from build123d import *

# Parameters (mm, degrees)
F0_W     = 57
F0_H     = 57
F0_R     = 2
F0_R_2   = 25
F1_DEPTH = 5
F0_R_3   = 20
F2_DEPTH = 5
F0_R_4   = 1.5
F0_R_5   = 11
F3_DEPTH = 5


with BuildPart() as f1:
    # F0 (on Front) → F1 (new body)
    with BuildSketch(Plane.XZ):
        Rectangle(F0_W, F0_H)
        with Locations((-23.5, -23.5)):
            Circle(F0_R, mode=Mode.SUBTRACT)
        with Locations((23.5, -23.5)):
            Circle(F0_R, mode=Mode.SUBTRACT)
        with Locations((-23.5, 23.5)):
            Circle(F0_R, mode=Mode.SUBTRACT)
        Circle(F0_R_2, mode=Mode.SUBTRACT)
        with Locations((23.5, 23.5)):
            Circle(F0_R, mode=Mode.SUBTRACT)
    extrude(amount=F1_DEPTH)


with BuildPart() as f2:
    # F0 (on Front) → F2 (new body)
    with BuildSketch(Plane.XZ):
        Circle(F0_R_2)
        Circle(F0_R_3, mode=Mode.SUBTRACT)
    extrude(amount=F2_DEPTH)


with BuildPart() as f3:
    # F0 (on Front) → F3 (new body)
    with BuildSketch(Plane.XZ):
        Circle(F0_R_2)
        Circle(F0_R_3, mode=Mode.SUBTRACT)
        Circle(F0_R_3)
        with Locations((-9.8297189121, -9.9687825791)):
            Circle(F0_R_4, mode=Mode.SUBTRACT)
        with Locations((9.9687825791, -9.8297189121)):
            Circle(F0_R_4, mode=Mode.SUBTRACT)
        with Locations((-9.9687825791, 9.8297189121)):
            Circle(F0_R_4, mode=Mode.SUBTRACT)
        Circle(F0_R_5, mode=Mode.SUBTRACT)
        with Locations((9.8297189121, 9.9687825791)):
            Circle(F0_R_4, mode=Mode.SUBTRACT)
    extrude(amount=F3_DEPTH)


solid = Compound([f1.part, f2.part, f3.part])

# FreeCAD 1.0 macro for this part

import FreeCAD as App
import Part
import Sketcher
from FreeCAD import Vector


def add_polygon(sketch, points):
    """Adds a closed chain of lines whose ends are joined by coincident constraints."""
    first, n = sketch.GeometryCount, len(points)
    for a, b in zip(points, points[1:] + points[:1]):
        sketch.addGeometry(Part.LineSegment(App.Vector(*a, 0), App.Vector(*b, 0)), False)
    for i in range(n):
        sketch.addConstraint(Sketcher.Constraint("Coincident", first + i, 2, first + (i + 1) % n, 1))

doc = App.newDocument("Part")
body = doc.addObject("PartDesign::Body", "Body")

sketch1 = body.newObject("Sketcher::SketchObject", "Sketch")
sketch1.AttachmentSupport = (doc.getObject("XZ_Plane"), [""])
sketch1.MapMode = "FlatFace"
add_polygon(sketch1, [(-28.5, 28.5), (-28.5, -28.5), (28.5, -28.5), (28.5, 28.5)])
sketch1.addGeometry(Part.Circle(Vector(-23.5, -23.5, 0), Vector(0, 0, 1), 2), False)
sketch1.addGeometry(Part.Circle(Vector(23.5, -23.5, 0), Vector(0, 0, 1), 2), False)
sketch1.addGeometry(Part.Circle(Vector(-23.5, 23.5, 0), Vector(0, 0, 1), 2), False)
sketch1.addGeometry(Part.Circle(Vector(0, 0, 0), Vector(0, 0, 1), 25), False)
sketch1.addGeometry(Part.Circle(Vector(23.5, 23.5, 0), Vector(0, 0, 1), 2), False)
sketch1.addConstraint([
    Sketcher.Constraint("Vertical", 0),
    Sketcher.Constraint("Horizontal", 1),
    Sketcher.Constraint("Vertical", 2),
    Sketcher.Constraint("Horizontal", 3),
    Sketcher.Constraint("Coincident", 7, 3, -1, 1),
    Sketcher.Constraint("Equal", 4, 5),
    Sketcher.Constraint("Equal", 5, 6),
    Sketcher.Constraint("Equal", 6, 8),
    Sketcher.Constraint("Symmetric", 5, 3, 6, 3, -1, 1),
    Sketcher.Constraint("Symmetric", 4, 3, 8, 3, -1, 1),
    Sketcher.Constraint("Symmetric", 0, 2, 2, 2, -1, 1),
    Sketcher.Constraint("Symmetric", 4, 3, 5, 3, -2),
    Sketcher.Constraint("Equal", 3, 0),
    Sketcher.Constraint("Diameter", 4, 4.0),
    Sketcher.Constraint("Diameter", 7, 50.0),
    Sketcher.Constraint("DistanceX", 1, 1, 1, 2, 57.0),
    Sketcher.Constraint("DistanceX", 4, 3, 5, 3, 47.0),
    Sketcher.Constraint("DistanceY", 4, 3, 6, 3, 47.0),
])
pad1 = body.newObject("PartDesign::Pad", "Pad")
pad1.Profile = sketch1
pad1.Length = 5
body2 = doc.addObject("PartDesign::Body", "Body001")

sketch2 = body2.newObject("Sketcher::SketchObject", "Sketch001")
sketch2.AttachmentSupport = (doc.getObject("XZ_Plane001"), [""])
sketch2.MapMode = "FlatFace"
sketch2.addGeometry([
    Part.Circle(Vector(0, 0, 0), Vector(0, 0, 1), 25),
    Part.Circle(Vector(0, 0, 0), Vector(0, 0, 1), 20),
], False)
sketch2.addConstraint([
    Sketcher.Constraint("Coincident", 0, 3, -1, 1),
    Sketcher.Constraint("Coincident", 1, 3, -1, 1),
    Sketcher.Constraint("Diameter", 0, 50.0),
    Sketcher.Constraint("Diameter", 1, 40.0),
])
pad2 = body2.newObject("PartDesign::Pad", "Pad001")
pad2.Profile = sketch2
pad2.Length = 5
body3 = doc.addObject("PartDesign::Body", "Body002")

sketch3 = body3.newObject("Sketcher::SketchObject", "Sketch002")
sketch3.AttachmentSupport = (doc.getObject("XZ_Plane002"), [""])
sketch3.MapMode = "FlatFace"
sketch3.addGeometry([
    Part.Circle(Vector(0, 0, 0), Vector(0, 0, 1), 25),
    Part.Circle(Vector(-9.829719, -9.968783, 0), Vector(0, 0, 1), 1.5),
    Part.Circle(Vector(9.968783, -9.829719, 0), Vector(0, 0, 1), 1.5),
    Part.Circle(Vector(-9.968783, 9.829719, 0), Vector(0, 0, 1), 1.5),
    Part.Circle(Vector(0, 0, 0), Vector(0, 0, 1), 11),
    Part.Circle(Vector(9.829719, 9.968783, 0), Vector(0, 0, 1), 1.5),
], False)
sketch3.addConstraint([
    Sketcher.Constraint("Coincident", 0, 3, -1, 1),
    Sketcher.Constraint("Coincident", 4, 3, -1, 1),
    Sketcher.Constraint("Equal", 1, 2),
    Sketcher.Constraint("Equal", 2, 3),
    Sketcher.Constraint("Equal", 3, 5),
    Sketcher.Constraint("Symmetric", 2, 3, 3, 3, -1, 1),
    Sketcher.Constraint("Symmetric", 1, 3, 5, 3, -1, 1),
    Sketcher.Constraint("Diameter", 0, 50.0),
    Sketcher.Constraint("Diameter", 1, 3.0),
    Sketcher.Constraint("Diameter", 4, 22.0),
    Sketcher.Constraint("DistanceX", 1, 3, 2, 3, 19.798501),
    Sketcher.Constraint("DistanceY", 1, 3, 3, 3, 19.798501),
    Sketcher.Constraint("DistanceX", 1, 3, -1, 1, 9.829719),
    Sketcher.Constraint("DistanceY", 2, 3, -1, 1, 9.829719),
])
pad3 = body3.newObject("PartDesign::Pad", "Pad002")
pad3.Profile = sketch3
pad3.Length = 5

doc.recompute()
